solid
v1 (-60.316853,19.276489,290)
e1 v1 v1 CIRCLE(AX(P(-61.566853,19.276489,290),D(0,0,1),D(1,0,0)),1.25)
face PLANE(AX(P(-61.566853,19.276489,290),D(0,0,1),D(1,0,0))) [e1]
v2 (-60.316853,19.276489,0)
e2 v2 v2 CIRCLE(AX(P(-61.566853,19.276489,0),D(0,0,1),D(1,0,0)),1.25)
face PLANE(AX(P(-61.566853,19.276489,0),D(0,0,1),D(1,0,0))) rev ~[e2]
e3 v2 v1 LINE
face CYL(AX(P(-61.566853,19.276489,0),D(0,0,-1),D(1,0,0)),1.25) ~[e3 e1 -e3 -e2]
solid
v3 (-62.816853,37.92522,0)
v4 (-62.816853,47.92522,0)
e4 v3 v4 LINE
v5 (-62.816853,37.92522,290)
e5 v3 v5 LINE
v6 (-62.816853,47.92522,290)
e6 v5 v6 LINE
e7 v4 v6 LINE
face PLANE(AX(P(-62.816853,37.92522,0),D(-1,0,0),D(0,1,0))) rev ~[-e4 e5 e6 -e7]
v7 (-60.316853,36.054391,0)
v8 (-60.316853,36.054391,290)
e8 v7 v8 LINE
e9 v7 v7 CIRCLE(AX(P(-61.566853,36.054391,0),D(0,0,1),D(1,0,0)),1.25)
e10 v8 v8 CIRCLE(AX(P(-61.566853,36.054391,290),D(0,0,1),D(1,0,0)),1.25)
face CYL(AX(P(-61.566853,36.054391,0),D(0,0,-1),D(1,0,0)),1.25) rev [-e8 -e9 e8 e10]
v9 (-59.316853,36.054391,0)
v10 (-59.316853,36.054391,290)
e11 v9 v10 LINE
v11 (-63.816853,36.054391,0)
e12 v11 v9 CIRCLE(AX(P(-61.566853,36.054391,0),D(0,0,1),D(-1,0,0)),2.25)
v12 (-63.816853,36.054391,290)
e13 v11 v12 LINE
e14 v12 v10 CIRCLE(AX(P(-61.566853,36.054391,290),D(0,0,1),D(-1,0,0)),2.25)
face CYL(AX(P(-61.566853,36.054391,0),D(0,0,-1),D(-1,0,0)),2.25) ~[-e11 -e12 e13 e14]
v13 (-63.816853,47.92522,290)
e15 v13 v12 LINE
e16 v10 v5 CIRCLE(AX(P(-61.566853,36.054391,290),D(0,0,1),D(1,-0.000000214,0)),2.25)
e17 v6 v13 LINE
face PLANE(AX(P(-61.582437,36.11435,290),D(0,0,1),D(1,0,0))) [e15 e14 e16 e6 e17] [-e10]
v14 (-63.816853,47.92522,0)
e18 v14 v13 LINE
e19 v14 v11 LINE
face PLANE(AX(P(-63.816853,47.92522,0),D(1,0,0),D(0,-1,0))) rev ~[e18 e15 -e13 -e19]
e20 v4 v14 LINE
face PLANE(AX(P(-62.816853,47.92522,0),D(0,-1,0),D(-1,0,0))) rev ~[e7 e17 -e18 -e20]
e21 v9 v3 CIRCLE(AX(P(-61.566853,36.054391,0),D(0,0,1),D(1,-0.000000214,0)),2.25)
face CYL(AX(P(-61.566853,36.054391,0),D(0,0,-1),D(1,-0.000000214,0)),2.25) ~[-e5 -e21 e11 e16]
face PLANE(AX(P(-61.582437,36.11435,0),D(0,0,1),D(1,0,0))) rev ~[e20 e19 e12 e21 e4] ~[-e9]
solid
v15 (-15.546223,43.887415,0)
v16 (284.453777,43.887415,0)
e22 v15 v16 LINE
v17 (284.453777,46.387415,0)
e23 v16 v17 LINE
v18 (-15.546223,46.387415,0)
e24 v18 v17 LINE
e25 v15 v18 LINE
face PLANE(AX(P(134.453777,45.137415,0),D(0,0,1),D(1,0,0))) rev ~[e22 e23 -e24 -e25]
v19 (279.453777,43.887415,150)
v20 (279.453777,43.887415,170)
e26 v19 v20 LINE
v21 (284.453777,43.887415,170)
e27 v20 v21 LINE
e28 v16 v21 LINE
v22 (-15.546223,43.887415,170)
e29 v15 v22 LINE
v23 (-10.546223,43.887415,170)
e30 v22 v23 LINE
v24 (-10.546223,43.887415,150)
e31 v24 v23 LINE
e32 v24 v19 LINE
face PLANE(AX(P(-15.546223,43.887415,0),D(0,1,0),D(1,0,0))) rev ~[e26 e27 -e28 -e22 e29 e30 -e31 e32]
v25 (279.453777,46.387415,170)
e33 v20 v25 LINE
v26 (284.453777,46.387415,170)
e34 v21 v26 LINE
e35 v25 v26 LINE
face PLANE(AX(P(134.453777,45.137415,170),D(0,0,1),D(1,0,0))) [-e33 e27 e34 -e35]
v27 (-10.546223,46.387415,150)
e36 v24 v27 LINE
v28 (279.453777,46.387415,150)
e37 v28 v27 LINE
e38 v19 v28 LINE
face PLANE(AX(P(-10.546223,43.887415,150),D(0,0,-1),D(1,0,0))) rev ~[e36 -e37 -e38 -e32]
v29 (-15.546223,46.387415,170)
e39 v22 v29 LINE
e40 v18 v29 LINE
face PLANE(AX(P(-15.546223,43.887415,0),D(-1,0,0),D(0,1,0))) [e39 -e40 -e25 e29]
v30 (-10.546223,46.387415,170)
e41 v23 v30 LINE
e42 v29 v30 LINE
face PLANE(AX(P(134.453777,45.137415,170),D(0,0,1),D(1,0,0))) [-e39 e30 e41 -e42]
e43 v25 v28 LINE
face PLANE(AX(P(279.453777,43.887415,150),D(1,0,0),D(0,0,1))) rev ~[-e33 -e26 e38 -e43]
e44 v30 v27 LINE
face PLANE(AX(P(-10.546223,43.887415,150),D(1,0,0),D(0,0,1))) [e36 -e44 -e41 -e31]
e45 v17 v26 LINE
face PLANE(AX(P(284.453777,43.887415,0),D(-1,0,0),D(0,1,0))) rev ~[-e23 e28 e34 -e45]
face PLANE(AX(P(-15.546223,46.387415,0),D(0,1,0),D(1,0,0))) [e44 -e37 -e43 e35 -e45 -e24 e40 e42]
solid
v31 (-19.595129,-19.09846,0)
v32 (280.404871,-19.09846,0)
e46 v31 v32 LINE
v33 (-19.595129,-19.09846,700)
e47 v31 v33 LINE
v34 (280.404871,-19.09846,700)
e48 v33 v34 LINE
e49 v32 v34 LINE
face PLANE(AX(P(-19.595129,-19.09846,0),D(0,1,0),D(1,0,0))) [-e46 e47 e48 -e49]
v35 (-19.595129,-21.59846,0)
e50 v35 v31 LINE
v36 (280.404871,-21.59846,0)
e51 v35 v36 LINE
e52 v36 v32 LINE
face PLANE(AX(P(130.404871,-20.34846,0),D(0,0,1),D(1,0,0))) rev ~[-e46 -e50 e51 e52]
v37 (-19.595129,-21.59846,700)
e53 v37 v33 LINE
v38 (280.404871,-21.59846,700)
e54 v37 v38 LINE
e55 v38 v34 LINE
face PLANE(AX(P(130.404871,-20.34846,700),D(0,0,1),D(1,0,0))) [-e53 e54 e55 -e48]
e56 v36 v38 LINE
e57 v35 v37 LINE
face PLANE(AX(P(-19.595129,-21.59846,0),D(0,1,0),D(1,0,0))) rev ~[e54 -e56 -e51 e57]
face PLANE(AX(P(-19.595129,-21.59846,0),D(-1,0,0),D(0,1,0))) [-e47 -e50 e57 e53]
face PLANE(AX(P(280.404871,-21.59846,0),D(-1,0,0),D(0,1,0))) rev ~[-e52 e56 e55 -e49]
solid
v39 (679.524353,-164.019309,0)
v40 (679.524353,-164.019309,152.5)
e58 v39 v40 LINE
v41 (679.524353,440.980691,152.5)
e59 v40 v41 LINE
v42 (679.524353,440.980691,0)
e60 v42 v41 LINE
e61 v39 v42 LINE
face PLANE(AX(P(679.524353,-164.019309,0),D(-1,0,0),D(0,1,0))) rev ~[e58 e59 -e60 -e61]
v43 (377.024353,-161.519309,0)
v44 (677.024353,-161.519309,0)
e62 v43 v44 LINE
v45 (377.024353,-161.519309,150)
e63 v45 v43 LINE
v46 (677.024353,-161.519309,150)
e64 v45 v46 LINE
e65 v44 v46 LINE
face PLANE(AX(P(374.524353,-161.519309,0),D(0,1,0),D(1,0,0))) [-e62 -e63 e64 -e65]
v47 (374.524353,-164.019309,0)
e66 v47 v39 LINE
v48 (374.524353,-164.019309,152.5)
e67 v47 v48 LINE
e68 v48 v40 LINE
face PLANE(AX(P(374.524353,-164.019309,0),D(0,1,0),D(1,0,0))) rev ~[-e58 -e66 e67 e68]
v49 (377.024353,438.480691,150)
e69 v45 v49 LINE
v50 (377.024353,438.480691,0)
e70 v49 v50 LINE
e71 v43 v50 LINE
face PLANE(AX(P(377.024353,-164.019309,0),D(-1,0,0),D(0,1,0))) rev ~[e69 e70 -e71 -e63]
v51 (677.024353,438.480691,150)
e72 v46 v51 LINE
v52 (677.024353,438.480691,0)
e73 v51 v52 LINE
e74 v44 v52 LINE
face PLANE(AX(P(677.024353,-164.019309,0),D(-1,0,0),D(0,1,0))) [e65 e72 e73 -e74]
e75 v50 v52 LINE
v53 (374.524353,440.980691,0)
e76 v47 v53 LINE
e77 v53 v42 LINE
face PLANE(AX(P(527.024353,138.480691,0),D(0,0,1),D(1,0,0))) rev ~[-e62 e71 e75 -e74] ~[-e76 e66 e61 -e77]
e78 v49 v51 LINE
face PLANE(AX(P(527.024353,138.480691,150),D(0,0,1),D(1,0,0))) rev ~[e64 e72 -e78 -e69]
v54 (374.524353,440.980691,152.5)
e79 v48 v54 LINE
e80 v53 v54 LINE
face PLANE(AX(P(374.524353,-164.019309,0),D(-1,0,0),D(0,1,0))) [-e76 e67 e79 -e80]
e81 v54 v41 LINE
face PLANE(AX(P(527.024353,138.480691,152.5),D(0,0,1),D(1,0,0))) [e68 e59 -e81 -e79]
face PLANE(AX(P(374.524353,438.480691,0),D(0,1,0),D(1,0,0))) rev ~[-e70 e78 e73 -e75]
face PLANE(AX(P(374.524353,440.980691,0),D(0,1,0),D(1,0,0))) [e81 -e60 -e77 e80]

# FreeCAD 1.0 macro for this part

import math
import FreeCAD as App
import Part
import Sketcher


def faces_at(feature, points):
    """Names of the faces that lie closest to the given points."""
    faces = feature.Shape.Faces
    near = lambda p: min(range(len(faces)), key=lambda i: faces[i].distToShape(Part.Vertex(*p))[0])
    return sorted({f"Face{near(p) + 1}" for p in points})


def add_polygon(sketch, points):
    """Adds a closed chain of lines whose ends are joined by coincident constraints."""
    first, n = sketch.GeometryCount, len(points)
    for a, b in zip(points, points[1:] + points[:1]):
        sketch.addGeometry(Part.LineSegment(App.Vector(*a, 0), App.Vector(*b, 0)), False)
    for i in range(n):
        sketch.addConstraint(Sketcher.Constraint("Coincident", first + i, 2, first + (i + 1) % n, 1))

doc = App.newDocument("Part")
body = doc.addObject("PartDesign::Body", "Body")

# Sketch on XY plane
sketch1 = body.newObject("Sketcher::SketchObject", "Sketch")
sketch1.AttachmentSupport = (doc.getObject("XY_Plane"), [""])
sketch1.MapMode = "FlatFace"
add_polygon(sketch1, [(-15.5, 46.4), (-15.5, 43.9), (284.5, 43.9), (284.5, 46.4)])  # lines 0-3
sketch1.addConstraint([
    Sketcher.Constraint("Vertical", 0),
    Sketcher.Constraint("Horizontal", 1),
    Sketcher.Constraint("Vertical", 2),
    Sketcher.Constraint("Horizontal", 3),
    Sketcher.Constraint("DistanceX", 1, 1, 1, 2, 300.0),
    Sketcher.Constraint("DistanceY", 0, 2, 0, 1, 2.5),
    Sketcher.Constraint("DistanceX", 0, 2, -1, 1, 15.546223),
    Sketcher.Constraint("DistanceY", -1, 1, 0, 2, 43.887415),
])
pad1 = body.newObject("PartDesign::Pad", "Pad")
pad1.Profile = sketch1
pad1.Length = 170

# Sketch on XZ plane
sketch2 = body.newObject("Sketcher::SketchObject", "Sketch001")
sketch2.AttachmentSupport = (doc.getObject("XZ_Plane"), [""])
sketch2.MapMode = "FlatFace"
sketch2.AttachmentOffset = App.Placement(App.Vector(0, 0, -43.887415), App.Rotation())
add_polygon(sketch2, [(-11, 170), (-11, 150), (279, 150), (279, 170)])  # lines 0-3
sketch2.addConstraint([
    Sketcher.Constraint("Vertical", 0),
    Sketcher.Constraint("Horizontal", 1),
    Sketcher.Constraint("Vertical", 2),
    Sketcher.Constraint("Horizontal", 3),
    Sketcher.Constraint("DistanceX", 1, 1, 1, 2, 290.0),
    Sketcher.Constraint("DistanceY", 0, 2, 0, 1, 20.0),
    Sketcher.Constraint("DistanceY", -1, 1, 0, 2, 150.0),
    Sketcher.Constraint("DistanceX", 0, 2, -1, 1, 10.546223),
])
pocket1 = body.newObject("PartDesign::Pocket", "Pocket")
pocket1.Profile = sketch2
pocket1.Length = 25
body2 = doc.addObject("PartDesign::Body", "Body001")

# Sketch on XY plane
sketch3 = body2.newObject("Sketcher::SketchObject", "Sketch002")
sketch3.AttachmentSupport = (doc.getObject("XY_Plane001"), [""])
sketch3.MapMode = "FlatFace"
sketch3.addGeometry(Part.Circle(App.Vector(-61.6, 19.3, 0), App.Vector(0, 0, 1), 1.2), False)
sketch3.addConstraint([
    Sketcher.Constraint("Diameter", 0, 2.5),
    Sketcher.Constraint("DistanceY", -1, 1, 0, 3, 19.276489),
    Sketcher.Constraint("DistanceX", 0, 3, -1, 1, 61.566853),
])
pad2 = body2.newObject("PartDesign::Pad", "Pad001")
pad2.Profile = sketch3
pad2.Length = 290
body3 = doc.addObject("PartDesign::Body", "Body002")

# Sketch on XY plane
sketch4 = body3.newObject("Sketcher::SketchObject", "Sketch003")
sketch4.AttachmentSupport = (doc.getObject("XY_Plane002"), [""])
sketch4.MapMode = "FlatFace"
sketch4.addGeometry([
    Part.ArcOfCircle(Part.Circle(App.Vector(-61.6, 36.1, 0), App.Vector(0, 0, 1), 2.2), math.radians(180), math.radians(360)),  # 0
    Part.ArcOfCircle(Part.Circle(App.Vector(-61.6, 36.1, 0), App.Vector(0, 0, 1), 2.2), math.radians(0), math.radians(124)),  # 1
    Part.LineSegment(App.Vector(-62.8, 37.9, 0), App.Vector(-62.8, 47.9, 0)),  # 2
    Part.LineSegment(App.Vector(-62.8, 47.9, 0), App.Vector(-63.8, 47.9, 0)),  # 3
    Part.LineSegment(App.Vector(-63.8, 47.9, 0), App.Vector(-63.8, 36.1, 0)),  # 4
    Part.Circle(App.Vector(-61.6, 36.1, 0), App.Vector(0, 0, 1), 1.2),  # 5
], False)
sketch4.addConstraint([
    Sketcher.Constraint("Tangent", 0, 2, 1, 1),
    Sketcher.Constraint("Coincident", 1, 2, 2, 1),
    Sketcher.Constraint("Coincident", 2, 2, 3, 1),
    Sketcher.Constraint("Coincident", 3, 2, 4, 1),
    Sketcher.Constraint("Tangent", 4, 2, 0, 1),
    Sketcher.Constraint("Vertical", 2),
    Sketcher.Constraint("Horizontal", 3),
    Sketcher.Constraint("Vertical", 4),
    Sketcher.Constraint("Coincident", 5, 3, 0, 3),
    Sketcher.Constraint("Equal", 0, 1),
    Sketcher.Constraint("Horizontal", 5, 3, 0, 2),
    Sketcher.Constraint("Diameter", 5, 2.5),
    Sketcher.Constraint("DistanceX", 3, 2, 3, 1, 1.0),
    Sketcher.Constraint("DistanceY", 2, 1, 2, 2, 10.0),
    Sketcher.Constraint("Radius", 0, 2.25),
    Sketcher.Constraint("DistanceY", -1, 1, 0, 3, 36.054391),
    Sketcher.Constraint("DistanceX", 0, 3, -1, 1, 61.566853),
])
pad3 = body3.newObject("PartDesign::Pad", "Pad002")
pad3.Profile = sketch4
pad3.Length = 290
body4 = doc.addObject("PartDesign::Body", "Body003")

# Sketch on XY plane
sketch5 = body4.newObject("Sketcher::SketchObject", "Sketch004")
sketch5.AttachmentSupport = (doc.getObject("XY_Plane003"), [""])
sketch5.MapMode = "FlatFace"
add_polygon(sketch5, [(-19.6, -19.1), (-19.6, -21.6), (280.4, -21.6), (280.4, -19.1)])  # lines 0-3
sketch5.addConstraint([
    Sketcher.Constraint("Vertical", 0),
    Sketcher.Constraint("Horizontal", 1),
    Sketcher.Constraint("Vertical", 2),
    Sketcher.Constraint("Horizontal", 3),
    Sketcher.Constraint("DistanceX", 1, 1, 1, 2, 300.0),
    Sketcher.Constraint("DistanceY", 0, 2, 0, 1, 2.5),
    Sketcher.Constraint("DistanceX", 0, 2, -1, 1, 19.595129),
    Sketcher.Constraint("DistanceY", 0, 2, -1, 1, 21.59846),
])
pad4 = body4.newObject("PartDesign::Pad", "Pad003")
pad4.Profile = sketch5
pad4.Length = 700
body5 = doc.addObject("PartDesign::Body", "Body004")

# Sketch on XY plane
sketch6 = body5.newObject("Sketcher::SketchObject", "Sketch005")
sketch6.AttachmentSupport = (doc.getObject("XY_Plane004"), [""])
sketch6.MapMode = "FlatFace"
add_polygon(sketch6, [(375, 441), (375, -164), (680, -164), (680, 441)])  # lines 0-3
sketch6.addConstraint([
    Sketcher.Constraint("Vertical", 0),
    Sketcher.Constraint("Horizontal", 1),
    Sketcher.Constraint("Vertical", 2),
    Sketcher.Constraint("Horizontal", 3),
    Sketcher.Constraint("DistanceX", 1, 1, 1, 2, 305.0),
    Sketcher.Constraint("DistanceY", 0, 2, 0, 1, 605.0),
    Sketcher.Constraint("DistanceY", 0, 2, -1, 1, 164.019309),
    Sketcher.Constraint("DistanceX", -1, 1, 0, 2, 374.524353),
])
pad5 = body5.newObject("PartDesign::Pad", "Pad004")
pad5.Profile = sketch6
pad5.Length = 152.5
doc.recompute()

thickness = body5.newObject("PartDesign::Thickness", "Thickness")
thickness.Base = (pad5, faces_at(pad5, [(527.024, 138.481, 0)]))
thickness.Value = 2.5
thickness.Reversed = True
thickness.Join = "Arc"

doc.recompute()
